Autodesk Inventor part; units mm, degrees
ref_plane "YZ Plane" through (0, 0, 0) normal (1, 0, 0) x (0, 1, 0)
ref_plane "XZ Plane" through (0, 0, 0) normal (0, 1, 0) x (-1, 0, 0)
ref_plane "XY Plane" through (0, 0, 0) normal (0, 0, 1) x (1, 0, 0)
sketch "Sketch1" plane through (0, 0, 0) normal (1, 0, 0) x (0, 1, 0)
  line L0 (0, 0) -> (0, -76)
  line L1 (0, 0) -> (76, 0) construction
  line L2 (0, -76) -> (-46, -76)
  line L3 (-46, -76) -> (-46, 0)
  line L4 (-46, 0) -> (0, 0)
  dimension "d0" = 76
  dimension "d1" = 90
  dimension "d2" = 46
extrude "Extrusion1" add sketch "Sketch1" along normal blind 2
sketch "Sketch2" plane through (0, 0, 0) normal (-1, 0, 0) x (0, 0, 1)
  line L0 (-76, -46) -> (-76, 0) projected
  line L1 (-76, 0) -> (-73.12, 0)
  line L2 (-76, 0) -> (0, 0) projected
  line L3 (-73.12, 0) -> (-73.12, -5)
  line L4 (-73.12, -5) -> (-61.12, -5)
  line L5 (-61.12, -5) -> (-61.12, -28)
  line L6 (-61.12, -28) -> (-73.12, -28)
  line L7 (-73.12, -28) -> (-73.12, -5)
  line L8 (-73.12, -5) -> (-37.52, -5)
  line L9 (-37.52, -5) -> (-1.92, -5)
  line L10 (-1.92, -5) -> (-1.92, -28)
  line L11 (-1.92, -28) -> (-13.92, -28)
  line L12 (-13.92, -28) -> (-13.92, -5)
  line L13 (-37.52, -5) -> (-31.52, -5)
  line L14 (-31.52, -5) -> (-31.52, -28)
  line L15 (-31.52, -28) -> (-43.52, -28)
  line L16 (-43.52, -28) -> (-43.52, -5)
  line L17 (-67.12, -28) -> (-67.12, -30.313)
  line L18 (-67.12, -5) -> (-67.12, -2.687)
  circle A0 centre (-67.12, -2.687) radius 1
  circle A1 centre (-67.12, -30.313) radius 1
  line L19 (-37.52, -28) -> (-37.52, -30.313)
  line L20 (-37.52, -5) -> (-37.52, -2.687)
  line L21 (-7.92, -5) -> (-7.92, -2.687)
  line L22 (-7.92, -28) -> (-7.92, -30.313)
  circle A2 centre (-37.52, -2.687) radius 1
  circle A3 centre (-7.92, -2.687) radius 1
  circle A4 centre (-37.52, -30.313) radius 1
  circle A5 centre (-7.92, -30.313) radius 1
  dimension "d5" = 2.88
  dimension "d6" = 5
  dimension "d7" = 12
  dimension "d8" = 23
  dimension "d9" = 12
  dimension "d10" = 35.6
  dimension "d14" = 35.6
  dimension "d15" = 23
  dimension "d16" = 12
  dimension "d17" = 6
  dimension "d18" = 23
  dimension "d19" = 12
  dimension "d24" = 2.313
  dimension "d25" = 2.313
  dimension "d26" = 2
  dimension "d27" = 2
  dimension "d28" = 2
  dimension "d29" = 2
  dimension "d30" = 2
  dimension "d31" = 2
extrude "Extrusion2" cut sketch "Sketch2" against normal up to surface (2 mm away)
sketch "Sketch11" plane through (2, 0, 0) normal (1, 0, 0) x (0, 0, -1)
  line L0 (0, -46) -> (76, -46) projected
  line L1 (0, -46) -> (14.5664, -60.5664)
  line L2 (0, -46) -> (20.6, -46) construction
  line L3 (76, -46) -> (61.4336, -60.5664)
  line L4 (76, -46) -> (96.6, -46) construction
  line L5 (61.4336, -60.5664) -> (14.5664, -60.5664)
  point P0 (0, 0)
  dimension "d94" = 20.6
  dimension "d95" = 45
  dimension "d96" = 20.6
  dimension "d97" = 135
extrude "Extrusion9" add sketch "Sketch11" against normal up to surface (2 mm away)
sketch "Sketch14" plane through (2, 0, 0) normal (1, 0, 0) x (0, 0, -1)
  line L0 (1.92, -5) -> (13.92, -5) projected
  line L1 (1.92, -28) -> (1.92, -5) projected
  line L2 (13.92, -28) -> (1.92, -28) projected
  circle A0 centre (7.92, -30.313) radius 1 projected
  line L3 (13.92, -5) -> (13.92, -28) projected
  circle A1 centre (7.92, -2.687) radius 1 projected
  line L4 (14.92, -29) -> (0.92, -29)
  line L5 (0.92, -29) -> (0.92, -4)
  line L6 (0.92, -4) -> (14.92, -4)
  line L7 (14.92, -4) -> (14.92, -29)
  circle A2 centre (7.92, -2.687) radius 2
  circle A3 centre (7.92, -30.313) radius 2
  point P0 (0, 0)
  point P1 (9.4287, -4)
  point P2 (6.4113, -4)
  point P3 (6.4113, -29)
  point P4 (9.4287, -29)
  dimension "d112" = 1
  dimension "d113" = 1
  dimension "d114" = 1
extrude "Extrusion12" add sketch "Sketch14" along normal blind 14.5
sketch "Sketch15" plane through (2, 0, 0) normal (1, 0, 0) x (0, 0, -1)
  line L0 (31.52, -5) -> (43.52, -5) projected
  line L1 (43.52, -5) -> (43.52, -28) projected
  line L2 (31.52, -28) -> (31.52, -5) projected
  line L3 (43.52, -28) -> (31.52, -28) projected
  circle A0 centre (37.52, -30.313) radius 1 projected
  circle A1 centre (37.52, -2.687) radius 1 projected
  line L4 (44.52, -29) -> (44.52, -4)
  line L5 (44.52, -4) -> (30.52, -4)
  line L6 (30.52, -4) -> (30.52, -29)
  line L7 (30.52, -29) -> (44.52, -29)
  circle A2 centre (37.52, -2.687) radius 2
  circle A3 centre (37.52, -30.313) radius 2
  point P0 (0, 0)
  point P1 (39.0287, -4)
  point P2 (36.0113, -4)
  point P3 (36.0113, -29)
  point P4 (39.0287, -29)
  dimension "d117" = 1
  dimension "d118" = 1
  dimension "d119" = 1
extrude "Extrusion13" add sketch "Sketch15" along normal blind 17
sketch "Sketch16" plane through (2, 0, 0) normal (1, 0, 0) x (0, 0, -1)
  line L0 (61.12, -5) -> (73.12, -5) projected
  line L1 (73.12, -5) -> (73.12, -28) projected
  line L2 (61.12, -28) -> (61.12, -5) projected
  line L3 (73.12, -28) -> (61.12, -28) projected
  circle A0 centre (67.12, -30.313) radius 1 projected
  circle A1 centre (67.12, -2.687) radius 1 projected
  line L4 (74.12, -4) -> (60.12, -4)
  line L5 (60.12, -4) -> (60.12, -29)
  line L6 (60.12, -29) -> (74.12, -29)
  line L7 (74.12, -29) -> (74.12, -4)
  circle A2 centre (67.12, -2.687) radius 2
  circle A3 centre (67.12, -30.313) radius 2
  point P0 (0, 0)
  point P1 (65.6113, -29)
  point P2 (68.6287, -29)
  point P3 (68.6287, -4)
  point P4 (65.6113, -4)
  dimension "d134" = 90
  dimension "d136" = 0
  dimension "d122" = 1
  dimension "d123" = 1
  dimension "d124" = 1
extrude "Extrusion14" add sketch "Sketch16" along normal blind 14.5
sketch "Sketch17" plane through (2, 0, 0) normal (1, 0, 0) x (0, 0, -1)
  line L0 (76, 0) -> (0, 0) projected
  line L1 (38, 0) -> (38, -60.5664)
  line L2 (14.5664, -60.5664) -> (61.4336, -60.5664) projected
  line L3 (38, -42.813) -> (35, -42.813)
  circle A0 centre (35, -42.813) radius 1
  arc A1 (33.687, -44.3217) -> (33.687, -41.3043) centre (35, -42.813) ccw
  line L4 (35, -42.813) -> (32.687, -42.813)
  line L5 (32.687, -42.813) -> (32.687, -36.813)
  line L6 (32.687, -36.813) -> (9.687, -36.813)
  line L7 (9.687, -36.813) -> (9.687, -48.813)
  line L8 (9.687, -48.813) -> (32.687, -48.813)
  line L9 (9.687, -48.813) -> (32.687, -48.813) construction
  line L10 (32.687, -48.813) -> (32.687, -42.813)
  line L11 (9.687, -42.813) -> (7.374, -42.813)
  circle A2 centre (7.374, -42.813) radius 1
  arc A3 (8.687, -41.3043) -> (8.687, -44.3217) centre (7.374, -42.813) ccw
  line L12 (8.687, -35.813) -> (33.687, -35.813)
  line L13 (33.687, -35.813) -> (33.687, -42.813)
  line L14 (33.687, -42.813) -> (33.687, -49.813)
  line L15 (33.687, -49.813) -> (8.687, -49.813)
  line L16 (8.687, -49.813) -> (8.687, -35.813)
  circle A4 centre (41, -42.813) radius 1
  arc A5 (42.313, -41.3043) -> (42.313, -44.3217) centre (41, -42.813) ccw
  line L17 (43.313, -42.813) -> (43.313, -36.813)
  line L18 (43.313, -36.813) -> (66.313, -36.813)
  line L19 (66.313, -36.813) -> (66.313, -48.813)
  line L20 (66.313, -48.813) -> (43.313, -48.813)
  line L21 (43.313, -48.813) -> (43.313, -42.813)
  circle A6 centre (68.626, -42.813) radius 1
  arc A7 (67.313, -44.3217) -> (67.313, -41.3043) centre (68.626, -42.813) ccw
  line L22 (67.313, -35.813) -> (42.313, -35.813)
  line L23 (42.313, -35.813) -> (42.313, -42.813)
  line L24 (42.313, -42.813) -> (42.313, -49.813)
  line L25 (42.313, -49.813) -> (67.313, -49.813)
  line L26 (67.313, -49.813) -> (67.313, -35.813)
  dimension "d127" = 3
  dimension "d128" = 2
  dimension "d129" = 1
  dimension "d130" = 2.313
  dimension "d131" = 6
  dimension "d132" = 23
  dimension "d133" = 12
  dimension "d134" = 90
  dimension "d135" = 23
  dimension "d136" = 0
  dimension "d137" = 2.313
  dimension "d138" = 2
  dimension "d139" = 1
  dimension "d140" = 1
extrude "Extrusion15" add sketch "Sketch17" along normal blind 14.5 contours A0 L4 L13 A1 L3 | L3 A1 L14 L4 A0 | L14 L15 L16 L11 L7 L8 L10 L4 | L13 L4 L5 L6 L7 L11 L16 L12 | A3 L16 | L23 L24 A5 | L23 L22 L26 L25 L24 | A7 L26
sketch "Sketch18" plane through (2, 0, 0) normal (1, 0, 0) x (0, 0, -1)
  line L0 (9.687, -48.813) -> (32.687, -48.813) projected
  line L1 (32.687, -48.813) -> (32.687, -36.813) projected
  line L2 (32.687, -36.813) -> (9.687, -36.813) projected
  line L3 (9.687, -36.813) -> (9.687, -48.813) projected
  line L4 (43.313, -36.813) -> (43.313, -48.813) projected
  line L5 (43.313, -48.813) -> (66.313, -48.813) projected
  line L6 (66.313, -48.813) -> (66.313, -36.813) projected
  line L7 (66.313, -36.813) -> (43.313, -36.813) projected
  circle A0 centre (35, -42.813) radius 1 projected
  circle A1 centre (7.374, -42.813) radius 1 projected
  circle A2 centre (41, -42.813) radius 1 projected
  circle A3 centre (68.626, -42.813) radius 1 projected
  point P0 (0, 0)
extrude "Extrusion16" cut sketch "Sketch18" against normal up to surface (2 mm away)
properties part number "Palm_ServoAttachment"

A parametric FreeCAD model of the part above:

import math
import FreeCAD as App
import Part
import Sketcher


def add_polygon(sketch, points):
    """Adds a closed chain of lines whose ends are joined by coincident constraints."""
    first, n = sketch.GeometryCount, len(points)
    for a, b in zip(points, points[1:] + points[:1]):
        sketch.addGeometry(Part.LineSegment(App.Vector(*a, 0), App.Vector(*b, 0)), False)
    for i in range(n):
        sketch.addConstraint(Sketcher.Constraint("Coincident", first + i, 2, first + (i + 1) % n, 1))

doc = App.newDocument("Part")
body = doc.addObject("PartDesign::Body", "Body")

# Sketch on YZ plane
sketch1 = body.newObject("Sketcher::SketchObject", "Sketch")
sketch1.AttachmentSupport = (doc.getObject("YZ_Plane"), [""])
sketch1.MapMode = "FlatFace"
add_polygon(sketch1, [(0, -76), (0, 0), (-46, 0), (-46, -76)])  # lines 0-3
sketch1.addConstraint(Sketcher.Constraint("Vertical", 0))
sketch1.addConstraint(Sketcher.Constraint("Horizontal", 1))
sketch1.addConstraint(Sketcher.Constraint("Vertical", 2))
sketch1.addConstraint(Sketcher.Constraint("Horizontal", 3))
sketch1.addConstraint(Sketcher.Constraint("Coincident", 0, 2, -1, 1))
sketch1.addConstraint(Sketcher.Constraint("DistanceX", 1, 2, 1, 1, 46.0))
sketch1.addConstraint(Sketcher.Constraint("DistanceY", 0, 1, 0, 2, 76.0))
pad1 = body.newObject("PartDesign::Pad", "Pad")
pad1.Profile = sketch1
pad1.Length = 2

# Sketch on YZ plane
sketch2 = body.newObject("Sketcher::SketchObject", "Sketch001")
sketch2.AttachmentSupport = (doc.getObject("YZ_Plane"), [""])
sketch2.MapMode = "FlatFace"
sketch2.addGeometry(Part.Circle(App.Vector(-2.7, -67.1, 0), App.Vector(0, 0, 1), 1), False)  # 0
sketch2.addGeometry(Part.Circle(App.Vector(-2.7, -37.5, 0), App.Vector(0, 0, 1), 1), False)  # 1
sketch2.addGeometry(Part.Circle(App.Vector(-2.7, -7.9, 0), App.Vector(0, 0, 1), 1), False)  # 2
sketch2.addGeometry(Part.Circle(App.Vector(-30.3, -7.9, 0), App.Vector(0, 0, 1), 1), False)  # 3
add_polygon(sketch2, [(-5, -1.9), (-5, -13.9), (-28, -13.9), (-28, -1.9)])  # lines 4-7
sketch2.addGeometry(Part.Circle(App.Vector(-30.3, -37.5, 0), App.Vector(0, 0, 1), 1), False)  # 8
add_polygon(sketch2, [(-5, -31.5), (-5, -43.5), (-28, -43.5), (-28, -31.5)])  # lines 9-12
sketch2.addGeometry(Part.Circle(App.Vector(-30.3, -67.1, 0), App.Vector(0, 0, 1), 1), False)  # 13
add_polygon(sketch2, [(-5, -61.1), (-5, -73.1), (-28, -73.1), (-28, -61.1)])  # lines 14-17
sketch2.addConstraint(Sketcher.Constraint("Vertical", 4))
sketch2.addConstraint(Sketcher.Constraint("Horizontal", 5))
sketch2.addConstraint(Sketcher.Constraint("Vertical", 6))
sketch2.addConstraint(Sketcher.Constraint("Horizontal", 7))
sketch2.addConstraint(Sketcher.Constraint("Vertical", 9))
sketch2.addConstraint(Sketcher.Constraint("Horizontal", 10))
sketch2.addConstraint(Sketcher.Constraint("Vertical", 11))
sketch2.addConstraint(Sketcher.Constraint("Horizontal", 12))
sketch2.addConstraint(Sketcher.Constraint("Vertical", 14))
sketch2.addConstraint(Sketcher.Constraint("Horizontal", 15))
sketch2.addConstraint(Sketcher.Constraint("Vertical", 16))
sketch2.addConstraint(Sketcher.Constraint("Horizontal", 17))
sketch2.addConstraint(Sketcher.Constraint("Equal", 0, 1))
sketch2.addConstraint(Sketcher.Constraint("Equal", 1, 2))
sketch2.addConstraint(Sketcher.Constraint("Equal", 2, 3))
sketch2.addConstraint(Sketcher.Constraint("Equal", 3, 8))
sketch2.addConstraint(Sketcher.Constraint("Equal", 8, 13))
sketch2.addConstraint(Sketcher.Constraint("Horizontal", 2, 3, 3, 3))
sketch2.addConstraint(Sketcher.Constraint("Horizontal", 1, 3, 8, 3))
sketch2.addConstraint(Sketcher.Constraint("Horizontal", 0, 3, 13, 3))
sketch2.addConstraint(Sketcher.Constraint("Vertical", 0, 3, 1, 3))
sketch2.addConstraint(Sketcher.Constraint("Vertical", 1, 3, 2, 3))
sketch2.addConstraint(Sketcher.Constraint("Vertical", 3, 3, 8, 3))
sketch2.addConstraint(Sketcher.Constraint("Vertical", 8, 3, 13, 3))
sketch2.addConstraint(Sketcher.Constraint("Vertical", 7, 2, 9, 2))
sketch2.addConstraint(Sketcher.Constraint("Vertical", 6, 2, 10, 2))
sketch2.addConstraint(Sketcher.Constraint("Vertical", 12, 2, 14, 2))
sketch2.addConstraint(Sketcher.Constraint("Vertical", 11, 2, 15, 2))
sketch2.addConstraint(Sketcher.Constraint("Equal", 6, 9))
sketch2.addConstraint(Sketcher.Constraint("Equal", 11, 14))
sketch2.addConstraint(Sketcher.Constraint("Diameter", 0, 2.0))
sketch2.addConstraint(Sketcher.Constraint("DistanceX", 5, 2, 5, 1, 23.0))
sketch2.addConstraint(Sketcher.Constraint("DistanceY", 4, 2, 4, 1, 12.0))
sketch2.addConstraint(Sketcher.Constraint("DistanceX", 4, 2, -1, 1, 5.0))
sketch2.addConstraint(Sketcher.Constraint("DistanceY", 4, 2, 2, 3, 6.0))
sketch2.addConstraint(Sketcher.Constraint("DistanceY", 9, 2, 1, 3, 6.0))
sketch2.addConstraint(Sketcher.Constraint("DistanceY", 14, 2, 0, 3, 6.0))
sketch2.addConstraint(Sketcher.Constraint("DistanceY", 8, 3, 6, 2, 35.6))
sketch2.addConstraint(Sketcher.Constraint("DistanceY", 14, 2, 1, 3, 35.6))
sketch2.addConstraint(Sketcher.Constraint("DistanceX", 4, 2, 2, 3, 2.313))
sketch2.addConstraint(Sketcher.Constraint("DistanceX", 3, 3, 5, 2, 2.313))
sketch2.addConstraint(Sketcher.Constraint("DistanceY", 0, 3, -1, 1, 67.12))
pocket1 = body.newObject("PartDesign::Pocket", "Pocket")
pocket1.Profile = sketch2
pocket1.Length = 2
pocket1.Reversed = True

# Sketch on YZ plane
sketch3 = body.newObject("Sketcher::SketchObject", "Sketch002")
sketch3.AttachmentSupport = (doc.getObject("YZ_Plane"), [""])
sketch3.MapMode = "FlatFace"
sketch3.AttachmentOffset = App.Placement(App.Vector(0, 0, 2), App.Rotation())
add_polygon(sketch3, [(-46, -76), (-46, 0), (-61, -15), (-61, -61)])  # lines 0-3
sketch3.addConstraint(Sketcher.Constraint("Vertical", 0))
sketch3.addConstraint(Sketcher.Constraint("Vertical", 2))
sketch3.addConstraint(Sketcher.Constraint("PointOnObject", 0, 2, -1))
sketch3.addConstraint(Sketcher.Constraint("Perpendicular", 1, 3))
sketch3.addConstraint(Sketcher.Constraint("Equal", 1, 3))
sketch3.addConstraint(Sketcher.Constraint("Distance", 1, 20.6))
sketch3.addConstraint(Sketcher.Constraint("DistanceY", 0, 1, 0, 2, 76.0))
sketch3.addConstraint(Sketcher.Constraint("DistanceX", 0, 2, -1, 1, 46.0))
pad2 = body.newObject("PartDesign::Pad", "Pad001")
pad2.Profile = sketch3
pad2.Length = 2
pad2.Reversed = True

# Sketch on YZ plane
sketch4 = body.newObject("Sketcher::SketchObject", "Sketch003")
sketch4.AttachmentSupport = (doc.getObject("YZ_Plane"), [""])
sketch4.MapMode = "FlatFace"
sketch4.AttachmentOffset = App.Placement(App.Vector(0, 0, 2), App.Rotation())
sketch4.addGeometry(Part.LineSegment(App.Vector(-29, -9.4, 0), App.Vector(-29, -14.9, 0)), False)  # 0
sketch4.addGeometry(Part.LineSegment(App.Vector(-29, -14.9, 0), App.Vector(-4, -14.9, 0)), False)  # 1
sketch4.addGeometry(Part.LineSegment(App.Vector(-4, -14.9, 0), App.Vector(-4, -9.4, 0)), False)  # 2
sketch4.addGeometry(Part.ArcOfCircle(Part.Circle(App.Vector(-2.7, -7.9, 0), App.Vector(0, 0, 1), 2), math.radians(-131), math.radians(131)), False)  # 3
sketch4.addGeometry(Part.LineSegment(App.Vector(-4, -6.4, 0), App.Vector(-4, -0.9, 0)), False)  # 4
sketch4.addGeometry(Part.LineSegment(App.Vector(-4, -0.9, 0), App.Vector(-29, -0.9, 0)), False)  # 5
sketch4.addGeometry(Part.LineSegment(App.Vector(-29, -0.9, 0), App.Vector(-29, -6.4, 0)), False)  # 6
sketch4.addGeometry(Part.ArcOfCircle(Part.Circle(App.Vector(-30.3, -7.9, 0), App.Vector(0, 0, 1), 2), math.radians(49), math.radians(311)), False)  # 7
add_polygon(sketch4, [(-28, -1.9), (-5, -1.9), (-5, -13.9), (-28, -13.9)])  # lines 8-11
sketch4.addGeometry(Part.Circle(App.Vector(-30.3, -7.9, 0), App.Vector(0, 0, 1), 1), False)  # 12
sketch4.addGeometry(Part.Circle(App.Vector(-2.7, -7.9, 0), App.Vector(0, 0, 1), 1), False)  # 13
sketch4.addConstraint(Sketcher.Constraint("Coincident", 0, 2, 1, 1))
sketch4.addConstraint(Sketcher.Constraint("Coincident", 1, 2, 2, 1))
sketch4.addConstraint(Sketcher.Constraint("Coincident", 2, 2, 3, 1))
sketch4.addConstraint(Sketcher.Constraint("Coincident", 3, 2, 4, 1))
sketch4.addConstraint(Sketcher.Constraint("Coincident", 4, 2, 5, 1))
sketch4.addConstraint(Sketcher.Constraint("Coincident", 5, 2, 6, 1))
sketch4.addConstraint(Sketcher.Constraint("Coincident", 6, 2, 7, 1))
sketch4.addConstraint(Sketcher.Constraint("Coincident", 7, 2, 0, 1))
sketch4.addConstraint(Sketcher.Constraint("Vertical", 0))
sketch4.addConstraint(Sketcher.Constraint("Horizontal", 1))
sketch4.addConstraint(Sketcher.Constraint("Vertical", 2))
sketch4.addConstraint(Sketcher.Constraint("Vertical", 4))
sketch4.addConstraint(Sketcher.Constraint("Horizontal", 5))
sketch4.addConstraint(Sketcher.Constraint("Vertical", 6))
sketch4.addConstraint(Sketcher.Constraint("Horizontal", 8))
sketch4.addConstraint(Sketcher.Constraint("Vertical", 9))
sketch4.addConstraint(Sketcher.Constraint("Horizontal", 10))
sketch4.addConstraint(Sketcher.Constraint("Vertical", 11))
sketch4.addConstraint(Sketcher.Constraint("Coincident", 12, 3, 7, 3))
sketch4.addConstraint(Sketcher.Constraint("Coincident", 13, 3, 3, 3))
sketch4.addConstraint(Sketcher.Constraint("Equal", 3, 7))
sketch4.addConstraint(Sketcher.Constraint("Equal", 12, 13))
sketch4.addConstraint(Sketcher.Constraint("Horizontal", 3, 3, 7, 3))
sketch4.addConstraint(Sketcher.Constraint("Horizontal", 3, 2, 6, 2))
sketch4.addConstraint(Sketcher.Constraint("Horizontal", 2, 2, 7, 2))
sketch4.addConstraint(Sketcher.Constraint("Vertical", 2, 2, 3, 2))
sketch4.addConstraint(Sketcher.Constraint("Equal", 2, 4))
sketch4.addConstraint(Sketcher.Constraint("Diameter", 12, 2.0))
sketch4.addConstraint(Sketcher.Constraint("Radius", 3, 2.0))
sketch4.addConstraint(Sketcher.Constraint("DistanceX", 8, 2, 4, 2, 1.0))
sketch4.addConstraint(Sketcher.Constraint("DistanceY", 8, 2, 4, 2, 1.0))
sketch4.addConstraint(Sketcher.Constraint("DistanceY", 1, 2, 9, 2, 1.0))
sketch4.addConstraint(Sketcher.Constraint("DistanceX", 0, 2, 10, 2, 1.0))
sketch4.addConstraint(Sketcher.Constraint("DistanceX", 1, 1, 1, 2, 25.0))
sketch4.addConstraint(Sketcher.Constraint("DistanceY", 9, 2, 9, 1, 12.0))
sketch4.addConstraint(Sketcher.Constraint("DistanceX", 0, 2, -1, 1, 29.0))
sketch4.addConstraint(Sketcher.Constraint("DistanceY", 3, 3, -1, 1, 7.92))
sketch4.addConstraint(Sketcher.Constraint("DistanceY", 0, 2, 0, 1, 5.4913))
pad3 = body.newObject("PartDesign::Pad", "Pad002")
pad3.Profile = sketch4
pad3.Length = 14.5

# Sketch on YZ plane
sketch5 = body.newObject("Sketcher::SketchObject", "Sketch004")
sketch5.AttachmentSupport = (doc.getObject("YZ_Plane"), [""])
sketch5.MapMode = "FlatFace"
sketch5.AttachmentOffset = App.Placement(App.Vector(0, 0, 2), App.Rotation())
sketch5.addGeometry(Part.LineSegment(App.Vector(-29, -39, 0), App.Vector(-29, -44.5, 0)), False)  # 0
sketch5.addGeometry(Part.LineSegment(App.Vector(-29, -44.5, 0), App.Vector(-4, -44.5, 0)), False)  # 1
sketch5.addGeometry(Part.LineSegment(App.Vector(-4, -44.5, 0), App.Vector(-4, -39, 0)), False)  # 2
sketch5.addGeometry(Part.ArcOfCircle(Part.Circle(App.Vector(-2.7, -37.5, 0), App.Vector(0, 0, 1), 2), math.radians(-131), math.radians(131)), False)  # 3
sketch5.addGeometry(Part.LineSegment(App.Vector(-4, -36, 0), App.Vector(-4, -30.5, 0)), False)  # 4
sketch5.addGeometry(Part.LineSegment(App.Vector(-4, -30.5, 0), App.Vector(-29, -30.5, 0)), False)  # 5
sketch5.addGeometry(Part.LineSegment(App.Vector(-29, -30.5, 0), App.Vector(-29, -36, 0)), False)  # 6
sketch5.addGeometry(Part.ArcOfCircle(Part.Circle(App.Vector(-30.3, -37.5, 0), App.Vector(0, 0, 1), 2), math.radians(49), math.radians(311)), False)  # 7
add_polygon(sketch5, [(-28, -31.5), (-5, -31.5), (-5, -43.5), (-28, -43.5)])  # lines 8-11
sketch5.addGeometry(Part.Circle(App.Vector(-30.3, -37.5, 0), App.Vector(0, 0, 1), 1), False)  # 12
sketch5.addGeometry(Part.Circle(App.Vector(-2.7, -37.5, 0), App.Vector(0, 0, 1), 1), False)  # 13
sketch5.addConstraint(Sketcher.Constraint("Coincident", 0, 2, 1, 1))
sketch5.addConstraint(Sketcher.Constraint("Coincident", 1, 2, 2, 1))
sketch5.addConstraint(Sketcher.Constraint("Coincident", 2, 2, 3, 1))
sketch5.addConstraint(Sketcher.Constraint("Coincident", 3, 2, 4, 1))
sketch5.addConstraint(Sketcher.Constraint("Coincident", 4, 2, 5, 1))
sketch5.addConstraint(Sketcher.Constraint("Coincident", 5, 2, 6, 1))
sketch5.addConstraint(Sketcher.Constraint("Coincident", 6, 2, 7, 1))
sketch5.addConstraint(Sketcher.Constraint("Coincident", 7, 2, 0, 1))
sketch5.addConstraint(Sketcher.Constraint("Vertical", 0))
sketch5.addConstraint(Sketcher.Constraint("Horizontal", 1))
sketch5.addConstraint(Sketcher.Constraint("Vertical", 2))
sketch5.addConstraint(Sketcher.Constraint("Vertical", 4))
sketch5.addConstraint(Sketcher.Constraint("Horizontal", 5))
sketch5.addConstraint(Sketcher.Constraint("Vertical", 6))
sketch5.addConstraint(Sketcher.Constraint("Horizontal", 8))
sketch5.addConstraint(Sketcher.Constraint("Vertical", 9))
sketch5.addConstraint(Sketcher.Constraint("Horizontal", 10))
sketch5.addConstraint(Sketcher.Constraint("Vertical", 11))
sketch5.addConstraint(Sketcher.Constraint("Coincident", 12, 3, 7, 3))
sketch5.addConstraint(Sketcher.Constraint("Coincident", 13, 3, 3, 3))
sketch5.addConstraint(Sketcher.Constraint("Equal", 3, 7))
sketch5.addConstraint(Sketcher.Constraint("Equal", 12, 13))
sketch5.addConstraint(Sketcher.Constraint("Horizontal", 3, 3, 7, 3))
sketch5.addConstraint(Sketcher.Constraint("Horizontal", 3, 2, 6, 2))
sketch5.addConstraint(Sketcher.Constraint("Horizontal", 2, 2, 7, 2))
sketch5.addConstraint(Sketcher.Constraint("Vertical", 2, 2, 3, 2))
sketch5.addConstraint(Sketcher.Constraint("Equal", 2, 4))
sketch5.addConstraint(Sketcher.Constraint("Diameter", 12, 2.0))
sketch5.addConstraint(Sketcher.Constraint("Radius", 3, 2.0))
sketch5.addConstraint(Sketcher.Constraint("DistanceX", 8, 2, 4, 2, 1.0))
sketch5.addConstraint(Sketcher.Constraint("DistanceY", 8, 2, 4, 2, 1.0))
sketch5.addConstraint(Sketcher.Constraint("DistanceY", 1, 2, 9, 2, 1.0))
sketch5.addConstraint(Sketcher.Constraint("DistanceX", 0, 2, 10, 2, 1.0))
sketch5.addConstraint(Sketcher.Constraint("DistanceX", 1, 1, 1, 2, 25.0))
sketch5.addConstraint(Sketcher.Constraint("DistanceY", 9, 2, 9, 1, 12.0))
sketch5.addConstraint(Sketcher.Constraint("DistanceX", 0, 2, -1, 1, 29.0))
sketch5.addConstraint(Sketcher.Constraint("DistanceY", 3, 3, -1, 1, 37.52))
sketch5.addConstraint(Sketcher.Constraint("DistanceY", 0, 2, 0, 1, 5.4913))
pad4 = body.newObject("PartDesign::Pad", "Pad003")
pad4.Profile = sketch5
pad4.Length = 17

# Sketch on YZ plane
sketch6 = body.newObject("Sketcher::SketchObject", "Sketch005")
sketch6.AttachmentSupport = (doc.getObject("YZ_Plane"), [""])
sketch6.MapMode = "FlatFace"
sketch6.AttachmentOffset = App.Placement(App.Vector(0, 0, 2), App.Rotation())
sketch6.addGeometry(Part.LineSegment(App.Vector(-29, -74.1, 0), App.Vector(-4, -74.1, 0)), False)  # 0
sketch6.addGeometry(Part.LineSegment(App.Vector(-4, -74.1, 0), App.Vector(-4, -68.6, 0)), False)  # 1
sketch6.addGeometry(Part.ArcOfCircle(Part.Circle(App.Vector(-2.7, -67.1, 0), App.Vector(0, 0, 1), 2), math.radians(-131), math.radians(131)), False)  # 2
sketch6.addGeometry(Part.LineSegment(App.Vector(-4, -65.6, 0), App.Vector(-4, -60.1, 0)), False)  # 3
sketch6.addGeometry(Part.LineSegment(App.Vector(-4, -60.1, 0), App.Vector(-29, -60.1, 0)), False)  # 4
sketch6.addGeometry(Part.LineSegment(App.Vector(-29, -60.1, 0), App.Vector(-29, -65.6, 0)), False)  # 5
sketch6.addGeometry(Part.ArcOfCircle(Part.Circle(App.Vector(-30.3, -67.1, 0), App.Vector(0, 0, 1), 2), math.radians(49), math.radians(311)), False)  # 6
sketch6.addGeometry(Part.LineSegment(App.Vector(-29, -68.6, 0), App.Vector(-29, -74.1, 0)), False)  # 7
add_polygon(sketch6, [(-28, -61.1), (-5, -61.1), (-5, -73.1), (-28, -73.1)])  # lines 8-11
sketch6.addGeometry(Part.Circle(App.Vector(-30.3, -67.1, 0), App.Vector(0, 0, 1), 1), False)  # 12
sketch6.addGeometry(Part.Circle(App.Vector(-2.7, -67.1, 0), App.Vector(0, 0, 1), 1), False)  # 13
sketch6.addConstraint(Sketcher.Constraint("Coincident", 0, 2, 1, 1))
sketch6.addConstraint(Sketcher.Constraint("Coincident", 1, 2, 2, 1))
sketch6.addConstraint(Sketcher.Constraint("Coincident", 2, 2, 3, 1))
sketch6.addConstraint(Sketcher.Constraint("Coincident", 3, 2, 4, 1))
sketch6.addConstraint(Sketcher.Constraint("Coincident", 4, 2, 5, 1))
sketch6.addConstraint(Sketcher.Constraint("Coincident", 5, 2, 6, 1))
sketch6.addConstraint(Sketcher.Constraint("Coincident", 6, 2, 7, 1))
sketch6.addConstraint(Sketcher.Constraint("Coincident", 7, 2, 0, 1))
sketch6.addConstraint(Sketcher.Constraint("Horizontal", 0))
sketch6.addConstraint(Sketcher.Constraint("Vertical", 1))
sketch6.addConstraint(Sketcher.Constraint("Vertical", 3))
sketch6.addConstraint(Sketcher.Constraint("Horizontal", 4))
sketch6.addConstraint(Sketcher.Constraint("Vertical", 5))
sketch6.addConstraint(Sketcher.Constraint("Vertical", 7))
sketch6.addConstraint(Sketcher.Constraint("Horizontal", 8))
sketch6.addConstraint(Sketcher.Constraint("Vertical", 9))
sketch6.addConstraint(Sketcher.Constraint("Horizontal", 10))
sketch6.addConstraint(Sketcher.Constraint("Vertical", 11))
sketch6.addConstraint(Sketcher.Constraint("Coincident", 12, 3, 6, 3))
sketch6.addConstraint(Sketcher.Constraint("Coincident", 13, 3, 2, 3))
sketch6.addConstraint(Sketcher.Constraint("Equal", 2, 6))
sketch6.addConstraint(Sketcher.Constraint("Equal", 12, 13))
sketch6.addConstraint(Sketcher.Constraint("Horizontal", 2, 3, 6, 3))
sketch6.addConstraint(Sketcher.Constraint("Horizontal", 2, 2, 5, 2))
sketch6.addConstraint(Sketcher.Constraint("Horizontal", 1, 2, 6, 2))
sketch6.addConstraint(Sketcher.Constraint("Vertical", 1, 2, 2, 2))
sketch6.addConstraint(Sketcher.Constraint("Equal", 1, 3))
sketch6.addConstraint(Sketcher.Constraint("Diameter", 12, 2.0))
sketch6.addConstraint(Sketcher.Constraint("Radius", 2, 2.0))
sketch6.addConstraint(Sketcher.Constraint("DistanceX", 8, 2, 3, 2, 1.0))
sketch6.addConstraint(Sketcher.Constraint("DistanceY", 8, 2, 3, 2, 1.0))
sketch6.addConstraint(Sketcher.Constraint("DistanceY", 0, 2, 9, 2, 1.0))
sketch6.addConstraint(Sketcher.Constraint("DistanceX", 7, 2, 10, 2, 1.0))
sketch6.addConstraint(Sketcher.Constraint("DistanceX", 0, 1, 0, 2, 25.0))
sketch6.addConstraint(Sketcher.Constraint("DistanceY", 9, 2, 9, 1, 12.0))
sketch6.addConstraint(Sketcher.Constraint("DistanceX", 0, 2, -1, 1, 4.0))
sketch6.addConstraint(Sketcher.Constraint("DistanceY", 2, 3, -1, 1, 67.12))
sketch6.addConstraint(Sketcher.Constraint("DistanceY", 1, 1, 1, 2, 5.4913))
pad5 = body.newObject("PartDesign::Pad", "Pad004")
pad5.Profile = sketch6
pad5.Length = 14.5

# Sketch on YZ plane
sketch7 = body.newObject("Sketcher::SketchObject", "Sketch006")
sketch7.AttachmentSupport = (doc.getObject("YZ_Plane"), [""])
sketch7.MapMode = "FlatFace"
sketch7.AttachmentOffset = App.Placement(App.Vector(0, 0, 2), App.Rotation())
sketch7.addGeometry(Part.LineSegment(App.Vector(-41.3, -33.7, 0), App.Vector(-35.8, -33.7, 0)), False)  # 0
sketch7.addGeometry(Part.LineSegment(App.Vector(-35.8, -33.7, 0), App.Vector(-35.8, -8.7, 0)), False)  # 1
sketch7.addGeometry(Part.LineSegment(App.Vector(-35.8, -8.7, 0), App.Vector(-41.3, -8.7, 0)), False)  # 2
sketch7.addGeometry(Part.ArcOfCircle(Part.Circle(App.Vector(-42.8, -7.4, 0), App.Vector(0, 0, 1), 2), math.radians(-41), math.radians(221)), False)  # 3
sketch7.addGeometry(Part.LineSegment(App.Vector(-44.3, -8.7, 0), App.Vector(-49.8, -8.7, 0)), False)  # 4
sketch7.addGeometry(Part.LineSegment(App.Vector(-49.8, -8.7, 0), App.Vector(-49.8, -33.7, 0)), False)  # 5
sketch7.addGeometry(Part.LineSegment(App.Vector(-49.8, -33.7, 0), App.Vector(-44.3, -33.7, 0)), False)  # 6
sketch7.addGeometry(Part.ArcOfCircle(Part.Circle(App.Vector(-42.8, -35, 0), App.Vector(0, 0, 1), 2), math.radians(139), math.radians(401)), False)  # 7
sketch7.addGeometry(Part.Circle(App.Vector(-42.8, -35, 0), App.Vector(0, 0, 1), 1), False)  # 8
add_polygon(sketch7, [(-36.8, -32.7), (-48.8, -32.7), (-48.8, -9.7), (-36.8, -9.7)])  # lines 9-12
sketch7.addGeometry(Part.Circle(App.Vector(-42.8, -7.4, 0), App.Vector(0, 0, 1), 1), False)  # 13
sketch7.addGeometry(Part.ArcOfCircle(Part.Circle(App.Vector(-42.8, -41, 0), App.Vector(0, 0, 1), 2), math.radians(-41), math.radians(221)), False)  # 14
sketch7.addGeometry(Part.LineSegment(App.Vector(-44.3, -42.3, 0), App.Vector(-49.8, -42.3, 0)), False)  # 15
sketch7.addGeometry(Part.LineSegment(App.Vector(-49.8, -42.3, 0), App.Vector(-49.8, -67.3, 0)), False)  # 16
sketch7.addGeometry(Part.LineSegment(App.Vector(-49.8, -67.3, 0), App.Vector(-44.3, -67.3, 0)), False)  # 17
sketch7.addGeometry(Part.ArcOfCircle(Part.Circle(App.Vector(-42.8, -68.6, 0), App.Vector(0, 0, 1), 2), math.radians(139), math.radians(401)), False)  # 18
sketch7.addGeometry(Part.LineSegment(App.Vector(-41.3, -67.3, 0), App.Vector(-35.8, -67.3, 0)), False)  # 19
sketch7.addGeometry(Part.LineSegment(App.Vector(-35.8, -67.3, 0), App.Vector(-35.8, -42.3, 0)), False)  # 20
sketch7.addGeometry(Part.LineSegment(App.Vector(-35.8, -42.3, 0), App.Vector(-41.3, -42.3, 0)), False)  # 21
sketch7.addGeometry(Part.Circle(App.Vector(-42.8, -41, 0), App.Vector(0, 0, 1), 1), False)  # 22
add_polygon(sketch7, [(-36.8, -43.3), (-36.8, -66.3), (-48.8, -66.3), (-48.8, -43.3)])  # lines 23-26
sketch7.addGeometry(Part.Circle(App.Vector(-42.8, -68.6, 0), App.Vector(0, 0, 1), 1), False)  # 27
sketch7.addConstraint(Sketcher.Constraint("Coincident", 0, 2, 1, 1))
sketch7.addConstraint(Sketcher.Constraint("Coincident", 1, 2, 2, 1))
sketch7.addConstraint(Sketcher.Constraint("Coincident", 2, 2, 3, 1))
sketch7.addConstraint(Sketcher.Constraint("Coincident", 3, 2, 4, 1))
sketch7.addConstraint(Sketcher.Constraint("Coincident", 4, 2, 5, 1))
sketch7.addConstraint(Sketcher.Constraint("Coincident", 5, 2, 6, 1))
sketch7.addConstraint(Sketcher.Constraint("Coincident", 6, 2, 7, 1))
sketch7.addConstraint(Sketcher.Constraint("Coincident", 7, 2, 0, 1))
sketch7.addConstraint(Sketcher.Constraint("Coincident", 14, 2, 15, 1))
sketch7.addConstraint(Sketcher.Constraint("Coincident", 15, 2, 16, 1))
sketch7.addConstraint(Sketcher.Constraint("Coincident", 16, 2, 17, 1))
sketch7.addConstraint(Sketcher.Constraint("Coincident", 17, 2, 18, 1))
sketch7.addConstraint(Sketcher.Constraint("Coincident", 18, 2, 19, 1))
sketch7.addConstraint(Sketcher.Constraint("Coincident", 19, 2, 20, 1))
sketch7.addConstraint(Sketcher.Constraint("Coincident", 20, 2, 21, 1))
sketch7.addConstraint(Sketcher.Constraint("Coincident", 21, 2, 14, 1))
sketch7.addConstraint(Sketcher.Constraint("Horizontal", 0))
sketch7.addConstraint(Sketcher.Constraint("Vertical", 1))
sketch7.addConstraint(Sketcher.Constraint("Horizontal", 2))
sketch7.addConstraint(Sketcher.Constraint("Horizontal", 4))
sketch7.addConstraint(Sketcher.Constraint("Vertical", 5))
sketch7.addConstraint(Sketcher.Constraint("Horizontal", 6))
sketch7.addConstraint(Sketcher.Constraint("Horizontal", 9))
sketch7.addConstraint(Sketcher.Constraint("Vertical", 10))
sketch7.addConstraint(Sketcher.Constraint("Horizontal", 11))
sketch7.addConstraint(Sketcher.Constraint("Vertical", 12))
sketch7.addConstraint(Sketcher.Constraint("Horizontal", 15))
sketch7.addConstraint(Sketcher.Constraint("Vertical", 16))
sketch7.addConstraint(Sketcher.Constraint("Horizontal", 17))
sketch7.addConstraint(Sketcher.Constraint("Horizontal", 19))
sketch7.addConstraint(Sketcher.Constraint("Vertical", 20))
sketch7.addConstraint(Sketcher.Constraint("Horizontal", 21))
sketch7.addConstraint(Sketcher.Constraint("Vertical", 23))
sketch7.addConstraint(Sketcher.Constraint("Horizontal", 24))
sketch7.addConstraint(Sketcher.Constraint("Vertical", 25))
sketch7.addConstraint(Sketcher.Constraint("Horizontal", 26))
sketch7.addConstraint(Sketcher.Constraint("Coincident", 8, 3, 7, 3))
sketch7.addConstraint(Sketcher.Constraint("Coincident", 13, 3, 3, 3))
sketch7.addConstraint(Sketcher.Constraint("Coincident", 22, 3, 14, 3))
sketch7.addConstraint(Sketcher.Constraint("Coincident", 27, 3, 18, 3))
sketch7.addConstraint(Sketcher.Constraint("Equal", 3, 7))
sketch7.addConstraint(Sketcher.Constraint("Equal", 8, 13))
sketch7.addConstraint(Sketcher.Constraint("Equal", 7, 14))
sketch7.addConstraint(Sketcher.Constraint("Equal", 14, 18))
sketch7.addConstraint(Sketcher.Constraint("Equal", 13, 22))
sketch7.addConstraint(Sketcher.Constraint("Equal", 22, 27))
sketch7.addConstraint(Sketcher.Constraint("Horizontal", 2, 2, 3, 2))
sketch7.addConstraint(Sketcher.Constraint("Horizontal", 0, 2, 5, 2))
sketch7.addConstraint(Sketcher.Constraint("Horizontal", 17, 2, 18, 2))
sketch7.addConstraint(Sketcher.Constraint("Horizontal", 15, 2, 20, 2))
sketch7.addConstraint(Sketcher.Constraint("Vertical", 3, 3, 7, 3))
sketch7.addConstraint(Sketcher.Constraint("Vertical", 13, 3, 14, 3))
sketch7.addConstraint(Sketcher.Constraint("Vertical", 14, 3, 18, 3))
sketch7.addConstraint(Sketcher.Constraint("Vertical", 3, 2, 6, 2))
sketch7.addConstraint(Sketcher.Constraint("Vertical", 6, 2, 14, 2))
sketch7.addConstraint(Sketcher.Constraint("Vertical", 5, 2, 15, 2))
sketch7.addConstraint(Sketcher.Constraint("Vertical", 14, 2, 17, 2))
sketch7.addConstraint(Sketcher.Constraint("Vertical", 1, 2, 19, 2))
sketch7.addConstraint(Sketcher.Constraint("Vertical", 12, 2, 23, 2))
sketch7.addConstraint(Sketcher.Constraint("Vertical", 10, 2, 24, 2))
sketch7.addConstraint(Sketcher.Constraint("Equal", 2, 4))
sketch7.addConstraint(Sketcher.Constraint("Equal", 5, 16))
sketch7.addConstraint(Sketcher.Constraint("Equal", 12, 23))
sketch7.addConstraint(Sketcher.Constraint("Diameter", 8, 2.0))
sketch7.addConstraint(Sketcher.Constraint("Radius", 3, 2.0))
sketch7.addConstraint(Sketcher.Constraint("DistanceX", 9, 2, 9, 1, 12.0))
sketch7.addConstraint(Sketcher.Constraint("DistanceY", 10, 1, 10, 2, 23.0))
sketch7.addConstraint(Sketcher.Constraint("DistanceY", 14, 3, 7, 3, 6.0))
sketch7.addConstraint(Sketcher.Constraint("DistanceX", 5, 2, 9, 2, 1.0))
sketch7.addConstraint(Sketcher.Constraint("DistanceY", 5, 2, 9, 2, 1.0))
sketch7.addConstraint(Sketcher.Constraint("DistanceX", 9, 2, 7, 3, 6.0))
sketch7.addConstraint(Sketcher.Constraint("DistanceY", 10, 2, 4, 2, 1.0))
sketch7.addConstraint(Sketcher.Constraint("DistanceY", 19, 2, 23, 2, 1.0))
sketch7.addConstraint(Sketcher.Constraint("DistanceY", 7, 3, -1, 1, 35.0))
sketch7.addConstraint(Sketcher.Constraint("DistanceY", 7, 3, 9, 2, 2.313))
sketch7.addConstraint(Sketcher.Constraint("DistanceX", 3, 3, -1, 1, 42.813))
pad6 = body.newObject("PartDesign::Pad", "Pad005")
pad6.Profile = sketch7
pad6.Length = 14.5

# Sketch on YZ plane
sketch8 = body.newObject("Sketcher::SketchObject", "Sketch007")
sketch8.AttachmentSupport = (doc.getObject("YZ_Plane"), [""])
sketch8.MapMode = "FlatFace"
sketch8.AttachmentOffset = App.Placement(App.Vector(0, 0, 2), App.Rotation())
add_polygon(sketch8, [(-36.8, -9.7), (-48.8, -9.7), (-48.8, -32.7), (-36.8, -32.7)])  # lines 0-3
add_polygon(sketch8, [(-36.8, -66.3), (-36.8, -43.3), (-48.8, -43.3), (-48.8, -66.3)])  # lines 4-7
sketch8.addGeometry(Part.Circle(App.Vector(-42.8, -35, 0), App.Vector(0, 0, 1), 1), False)  # 8
sketch8.addGeometry(Part.Circle(App.Vector(-42.8, -7.4, 0), App.Vector(0, 0, 1), 1), False)  # 9
sketch8.addGeometry(Part.Circle(App.Vector(-42.8, -41, 0), App.Vector(0, 0, 1), 1), False)  # 10
sketch8.addGeometry(Part.Circle(App.Vector(-42.8, -68.6, 0), App.Vector(0, 0, 1), 1), False)  # 11
sketch8.addConstraint(Sketcher.Constraint("Horizontal", 0))
sketch8.addConstraint(Sketcher.Constraint("Vertical", 1))
sketch8.addConstraint(Sketcher.Constraint("Horizontal", 2))
sketch8.addConstraint(Sketcher.Constraint("Vertical", 3))
sketch8.addConstraint(Sketcher.Constraint("Vertical", 4))
sketch8.addConstraint(Sketcher.Constraint("Horizontal", 5))
sketch8.addConstraint(Sketcher.Constraint("Vertical", 6))
sketch8.addConstraint(Sketcher.Constraint("Horizontal", 7))
sketch8.addConstraint(Sketcher.Constraint("Equal", 8, 9))
sketch8.addConstraint(Sketcher.Constraint("Equal", 9, 10))
sketch8.addConstraint(Sketcher.Constraint("Equal", 10, 11))
sketch8.addConstraint(Sketcher.Constraint("Vertical", 8, 3, 9, 3))
sketch8.addConstraint(Sketcher.Constraint("Vertical", 9, 3, 10, 3))
sketch8.addConstraint(Sketcher.Constraint("Vertical", 10, 3, 11, 3))
sketch8.addConstraint(Sketcher.Constraint("Vertical", 3, 2, 4, 2))
sketch8.addConstraint(Sketcher.Constraint("Vertical", 1, 2, 5, 2))
sketch8.addConstraint(Sketcher.Constraint("Equal", 3, 4))
sketch8.addConstraint(Sketcher.Constraint("Diameter", 8, 2.0))
sketch8.addConstraint(Sketcher.Constraint("DistanceX", 0, 2, 0, 1, 12.0))
sketch8.addConstraint(Sketcher.Constraint("DistanceY", 1, 2, 1, 1, 23.0))
sketch8.addConstraint(Sketcher.Constraint("DistanceY", 8, 3, -1, 1, 35.0))
sketch8.addConstraint(Sketcher.Constraint("DistanceY", 10, 3, -1, 1, 41.0))
sketch8.addConstraint(Sketcher.Constraint("DistanceX", 0, 2, 9, 3, 6.0))
sketch8.addConstraint(Sketcher.Constraint("DistanceX", 8, 3, -1, 1, 42.813))
sketch8.addConstraint(Sketcher.Constraint("DistanceY", 9, 3, -1, 1, 7.374))
sketch8.addConstraint(Sketcher.Constraint("DistanceY", 11, 3, -1, 1, 68.626))
sketch8.addConstraint(Sketcher.Constraint("DistanceY", 0, 2, -1, 1, 9.687))
sketch8.addConstraint(Sketcher.Constraint("DistanceY", 4, 2, -1, 1, 43.313))
pocket2 = body.newObject("PartDesign::Pocket", "Pocket001")
pocket2.Profile = sketch8
pocket2.Length = 2

doc.recompute()
